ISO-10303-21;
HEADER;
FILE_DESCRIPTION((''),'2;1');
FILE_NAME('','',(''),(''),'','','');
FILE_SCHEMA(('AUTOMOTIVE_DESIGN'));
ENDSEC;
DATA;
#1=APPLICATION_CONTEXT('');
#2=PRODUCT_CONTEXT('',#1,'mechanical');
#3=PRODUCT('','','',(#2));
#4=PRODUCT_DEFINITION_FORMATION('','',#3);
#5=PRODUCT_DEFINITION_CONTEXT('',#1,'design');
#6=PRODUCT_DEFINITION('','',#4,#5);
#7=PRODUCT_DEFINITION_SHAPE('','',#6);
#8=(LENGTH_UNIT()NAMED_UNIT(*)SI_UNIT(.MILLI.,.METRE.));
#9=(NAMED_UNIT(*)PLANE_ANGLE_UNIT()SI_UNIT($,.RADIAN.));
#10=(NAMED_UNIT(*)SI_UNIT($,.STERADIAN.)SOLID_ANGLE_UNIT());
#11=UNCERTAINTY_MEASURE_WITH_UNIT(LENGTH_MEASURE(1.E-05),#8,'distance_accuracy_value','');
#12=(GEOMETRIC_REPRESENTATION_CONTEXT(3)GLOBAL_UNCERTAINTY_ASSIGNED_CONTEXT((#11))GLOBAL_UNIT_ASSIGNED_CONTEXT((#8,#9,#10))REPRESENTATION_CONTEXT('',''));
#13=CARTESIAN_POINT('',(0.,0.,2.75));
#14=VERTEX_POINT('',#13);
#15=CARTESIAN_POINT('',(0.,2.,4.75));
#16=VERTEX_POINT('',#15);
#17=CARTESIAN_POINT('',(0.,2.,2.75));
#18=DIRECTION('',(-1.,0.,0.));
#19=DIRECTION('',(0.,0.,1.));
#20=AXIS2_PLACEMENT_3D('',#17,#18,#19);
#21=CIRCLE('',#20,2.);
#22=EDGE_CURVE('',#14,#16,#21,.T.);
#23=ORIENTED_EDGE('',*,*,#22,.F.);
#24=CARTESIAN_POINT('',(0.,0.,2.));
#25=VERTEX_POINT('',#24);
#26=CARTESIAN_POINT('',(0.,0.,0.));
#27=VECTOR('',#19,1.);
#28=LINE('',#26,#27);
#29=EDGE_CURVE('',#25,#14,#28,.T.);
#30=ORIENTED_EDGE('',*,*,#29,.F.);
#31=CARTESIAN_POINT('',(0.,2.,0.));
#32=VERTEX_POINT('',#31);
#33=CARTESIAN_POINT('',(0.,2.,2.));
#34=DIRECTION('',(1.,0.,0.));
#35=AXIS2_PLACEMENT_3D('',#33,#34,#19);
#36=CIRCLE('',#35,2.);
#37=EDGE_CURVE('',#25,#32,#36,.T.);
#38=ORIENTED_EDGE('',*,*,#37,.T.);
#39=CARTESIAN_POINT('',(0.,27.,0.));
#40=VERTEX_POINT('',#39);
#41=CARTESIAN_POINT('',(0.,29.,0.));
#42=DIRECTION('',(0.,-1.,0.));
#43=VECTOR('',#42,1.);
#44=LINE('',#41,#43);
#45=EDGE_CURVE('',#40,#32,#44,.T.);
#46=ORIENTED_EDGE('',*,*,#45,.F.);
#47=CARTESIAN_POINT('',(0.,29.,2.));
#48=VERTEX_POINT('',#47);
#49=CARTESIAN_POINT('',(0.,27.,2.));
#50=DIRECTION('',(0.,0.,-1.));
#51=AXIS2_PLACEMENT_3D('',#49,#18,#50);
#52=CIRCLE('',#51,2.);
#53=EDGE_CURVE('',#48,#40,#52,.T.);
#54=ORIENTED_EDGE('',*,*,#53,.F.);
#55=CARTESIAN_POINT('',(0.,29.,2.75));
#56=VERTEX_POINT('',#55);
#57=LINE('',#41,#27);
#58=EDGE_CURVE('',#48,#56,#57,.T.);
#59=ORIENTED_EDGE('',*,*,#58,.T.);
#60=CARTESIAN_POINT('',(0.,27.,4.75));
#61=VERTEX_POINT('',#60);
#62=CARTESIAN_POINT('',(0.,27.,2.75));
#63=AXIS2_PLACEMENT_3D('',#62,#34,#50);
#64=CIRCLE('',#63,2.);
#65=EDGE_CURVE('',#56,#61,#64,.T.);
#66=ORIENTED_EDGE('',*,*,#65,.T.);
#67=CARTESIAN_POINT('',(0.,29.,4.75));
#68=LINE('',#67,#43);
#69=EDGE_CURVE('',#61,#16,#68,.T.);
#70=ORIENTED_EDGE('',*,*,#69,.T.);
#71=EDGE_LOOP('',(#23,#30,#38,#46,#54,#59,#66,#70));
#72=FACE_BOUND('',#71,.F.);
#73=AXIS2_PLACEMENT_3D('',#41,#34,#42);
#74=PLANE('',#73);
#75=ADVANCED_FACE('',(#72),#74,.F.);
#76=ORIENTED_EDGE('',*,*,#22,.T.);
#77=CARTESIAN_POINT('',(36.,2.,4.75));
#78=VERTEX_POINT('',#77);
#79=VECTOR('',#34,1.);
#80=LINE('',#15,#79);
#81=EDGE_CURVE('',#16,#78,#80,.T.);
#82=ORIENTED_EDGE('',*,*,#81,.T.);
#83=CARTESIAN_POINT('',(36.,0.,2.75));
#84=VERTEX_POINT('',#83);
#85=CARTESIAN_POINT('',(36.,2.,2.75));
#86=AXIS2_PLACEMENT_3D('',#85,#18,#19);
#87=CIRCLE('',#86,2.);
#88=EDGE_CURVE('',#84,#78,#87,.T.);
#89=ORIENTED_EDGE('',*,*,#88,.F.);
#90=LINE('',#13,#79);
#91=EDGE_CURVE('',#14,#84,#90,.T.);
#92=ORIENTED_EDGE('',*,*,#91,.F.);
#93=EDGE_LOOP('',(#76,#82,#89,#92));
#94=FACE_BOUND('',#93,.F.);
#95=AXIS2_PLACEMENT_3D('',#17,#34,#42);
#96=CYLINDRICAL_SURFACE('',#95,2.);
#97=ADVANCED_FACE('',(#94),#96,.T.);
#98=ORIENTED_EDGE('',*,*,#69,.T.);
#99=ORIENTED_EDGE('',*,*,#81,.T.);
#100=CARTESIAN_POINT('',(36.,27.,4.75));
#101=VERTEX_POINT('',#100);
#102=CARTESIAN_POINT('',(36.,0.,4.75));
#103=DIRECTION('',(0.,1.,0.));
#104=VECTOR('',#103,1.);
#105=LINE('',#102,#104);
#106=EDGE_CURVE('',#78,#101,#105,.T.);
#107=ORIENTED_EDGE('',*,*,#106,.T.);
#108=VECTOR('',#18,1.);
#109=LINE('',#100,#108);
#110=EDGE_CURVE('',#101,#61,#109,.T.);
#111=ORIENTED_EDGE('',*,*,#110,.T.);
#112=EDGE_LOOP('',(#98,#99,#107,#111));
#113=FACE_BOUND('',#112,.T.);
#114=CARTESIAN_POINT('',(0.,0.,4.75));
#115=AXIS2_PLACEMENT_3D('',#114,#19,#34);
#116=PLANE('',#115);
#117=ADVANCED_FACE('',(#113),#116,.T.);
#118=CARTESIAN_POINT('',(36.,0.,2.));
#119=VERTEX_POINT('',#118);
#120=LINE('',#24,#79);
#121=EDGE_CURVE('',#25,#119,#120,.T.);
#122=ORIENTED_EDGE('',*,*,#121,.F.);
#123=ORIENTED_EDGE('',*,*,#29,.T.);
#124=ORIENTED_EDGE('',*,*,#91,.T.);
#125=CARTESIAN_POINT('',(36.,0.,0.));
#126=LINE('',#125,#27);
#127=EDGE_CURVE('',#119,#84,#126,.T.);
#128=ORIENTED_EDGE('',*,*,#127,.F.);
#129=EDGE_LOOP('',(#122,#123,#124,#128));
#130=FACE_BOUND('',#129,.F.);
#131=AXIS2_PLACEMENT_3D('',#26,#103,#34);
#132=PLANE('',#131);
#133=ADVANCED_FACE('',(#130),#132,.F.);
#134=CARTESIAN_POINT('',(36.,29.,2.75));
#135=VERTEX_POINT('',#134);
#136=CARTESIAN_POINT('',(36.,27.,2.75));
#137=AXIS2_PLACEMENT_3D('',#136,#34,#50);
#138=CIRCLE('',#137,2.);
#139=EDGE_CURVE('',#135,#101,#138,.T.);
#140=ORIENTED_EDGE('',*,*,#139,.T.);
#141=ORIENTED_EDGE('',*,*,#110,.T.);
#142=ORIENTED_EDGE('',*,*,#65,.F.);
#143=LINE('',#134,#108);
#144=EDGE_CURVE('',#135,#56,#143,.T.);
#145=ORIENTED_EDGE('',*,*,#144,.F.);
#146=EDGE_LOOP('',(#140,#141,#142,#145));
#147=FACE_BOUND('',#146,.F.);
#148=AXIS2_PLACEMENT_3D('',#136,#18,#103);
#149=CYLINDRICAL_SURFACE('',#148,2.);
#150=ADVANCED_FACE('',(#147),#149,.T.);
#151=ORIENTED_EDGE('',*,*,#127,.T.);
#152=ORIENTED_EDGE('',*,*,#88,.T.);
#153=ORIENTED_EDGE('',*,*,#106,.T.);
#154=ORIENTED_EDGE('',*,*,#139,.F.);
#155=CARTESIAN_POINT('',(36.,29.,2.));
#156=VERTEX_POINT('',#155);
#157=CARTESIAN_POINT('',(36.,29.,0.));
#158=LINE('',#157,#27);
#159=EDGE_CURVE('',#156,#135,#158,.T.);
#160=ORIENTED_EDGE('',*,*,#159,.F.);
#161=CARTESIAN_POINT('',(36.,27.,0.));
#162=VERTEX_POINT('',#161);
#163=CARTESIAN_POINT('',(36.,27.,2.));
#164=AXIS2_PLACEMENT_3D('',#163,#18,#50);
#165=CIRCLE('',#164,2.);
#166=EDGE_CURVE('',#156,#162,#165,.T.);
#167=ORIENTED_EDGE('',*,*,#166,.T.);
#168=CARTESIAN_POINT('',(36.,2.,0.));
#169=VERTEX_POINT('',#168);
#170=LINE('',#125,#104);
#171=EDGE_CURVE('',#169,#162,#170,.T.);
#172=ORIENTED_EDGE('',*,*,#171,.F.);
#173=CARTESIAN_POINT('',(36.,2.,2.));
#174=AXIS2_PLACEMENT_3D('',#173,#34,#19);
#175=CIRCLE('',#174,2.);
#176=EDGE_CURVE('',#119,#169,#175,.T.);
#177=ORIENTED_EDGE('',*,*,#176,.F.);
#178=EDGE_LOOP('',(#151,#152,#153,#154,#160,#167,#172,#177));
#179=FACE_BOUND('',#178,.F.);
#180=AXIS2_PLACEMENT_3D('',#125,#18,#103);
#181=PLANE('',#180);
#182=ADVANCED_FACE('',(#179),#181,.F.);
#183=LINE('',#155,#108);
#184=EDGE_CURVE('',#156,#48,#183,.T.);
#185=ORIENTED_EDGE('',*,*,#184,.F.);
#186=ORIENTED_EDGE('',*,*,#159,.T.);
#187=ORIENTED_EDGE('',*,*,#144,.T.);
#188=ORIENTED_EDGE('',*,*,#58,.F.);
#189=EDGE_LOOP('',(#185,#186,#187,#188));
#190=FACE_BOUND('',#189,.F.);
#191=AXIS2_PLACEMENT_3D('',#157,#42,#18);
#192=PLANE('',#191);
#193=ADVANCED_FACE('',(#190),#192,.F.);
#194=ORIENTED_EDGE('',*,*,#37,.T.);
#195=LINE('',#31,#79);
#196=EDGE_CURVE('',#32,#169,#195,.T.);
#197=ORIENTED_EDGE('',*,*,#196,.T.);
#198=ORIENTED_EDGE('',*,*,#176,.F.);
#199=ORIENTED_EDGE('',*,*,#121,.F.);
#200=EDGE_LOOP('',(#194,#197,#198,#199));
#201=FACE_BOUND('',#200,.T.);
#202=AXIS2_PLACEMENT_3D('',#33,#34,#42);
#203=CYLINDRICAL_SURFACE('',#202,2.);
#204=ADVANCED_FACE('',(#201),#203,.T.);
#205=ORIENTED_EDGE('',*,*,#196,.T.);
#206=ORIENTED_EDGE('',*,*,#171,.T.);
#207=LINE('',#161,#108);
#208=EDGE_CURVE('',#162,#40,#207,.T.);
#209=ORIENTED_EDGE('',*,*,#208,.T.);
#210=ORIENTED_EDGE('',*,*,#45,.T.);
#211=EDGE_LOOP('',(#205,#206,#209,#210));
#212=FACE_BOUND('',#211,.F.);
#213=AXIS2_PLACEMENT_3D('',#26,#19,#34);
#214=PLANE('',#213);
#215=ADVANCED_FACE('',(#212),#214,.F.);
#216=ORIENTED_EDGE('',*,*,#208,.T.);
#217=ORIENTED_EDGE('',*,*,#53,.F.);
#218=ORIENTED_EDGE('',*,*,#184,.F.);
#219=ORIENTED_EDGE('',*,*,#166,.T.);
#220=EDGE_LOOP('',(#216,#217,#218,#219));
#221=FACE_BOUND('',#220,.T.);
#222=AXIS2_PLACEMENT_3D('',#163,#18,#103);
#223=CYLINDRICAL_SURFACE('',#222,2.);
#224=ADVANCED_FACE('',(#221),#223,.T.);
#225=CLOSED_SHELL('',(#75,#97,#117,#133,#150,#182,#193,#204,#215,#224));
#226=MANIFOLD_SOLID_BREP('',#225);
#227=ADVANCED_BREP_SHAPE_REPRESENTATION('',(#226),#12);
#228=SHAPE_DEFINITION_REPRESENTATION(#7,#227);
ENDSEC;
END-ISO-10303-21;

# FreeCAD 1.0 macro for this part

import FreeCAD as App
import Part
import Sketcher

V = App.Vector
Q = App.Units.Quantity


def edges_at(feature, points):
    """Names of the edges that pass closest to the given points."""
    edges = feature.Shape.Edges
    near = lambda p: min(range(len(edges)), key=lambda i: edges[i].distToShape(Part.Vertex(*p))[0])
    return sorted({f"Edge{near(p) + 1}" for p in points})


def add_polygon(sketch, points):
    """Adds a closed chain of lines whose ends are joined by coincident constraints."""
    first, n = sketch.GeometryCount, len(points)
    for a, b in zip(points, points[1:] + points[:1]):
        sketch.addGeometry(Part.LineSegment(App.Vector(*a, 0), App.Vector(*b, 0)), False)
    for i in range(n):
        sketch.addConstraint(Sketcher.Constraint("Coincident", first + i, 2, first + (i + 1) % n, 1))

doc = App.newDocument("Part")
body = doc.addObject("PartDesign::Body", "Body")

# Sketch on XY plane
sketch1 = doc.addObject("Sketcher::SketchObject", "Sketch")
body.addObject(sketch1)
sketch1.AttachmentSupport = (doc.XY_Plane, [""])
sketch1.MapMode = "FlatFace"
add_polygon(sketch1, [(0, 29), (0, 0), (36, 0), (36, 29)])  # lines 0-3
sketch1.addConstraint(Sketcher.Constraint("Vertical", 0))
sketch1.addConstraint(Sketcher.Constraint("Horizontal", 1))
sketch1.addConstraint(Sketcher.Constraint("Vertical", 2))
sketch1.addConstraint(Sketcher.Constraint("Horizontal", 3))
sketch1.addConstraint(Sketcher.Constraint("Coincident", 0, 2, -1, 1))
sketch1.addConstraint(Sketcher.Constraint("DistanceX", 1, 1, 1, 2, Q("36 mm")))
sketch1.addConstraint(Sketcher.Constraint("DistanceY", 0, 2, 0, 1, Q("29 mm")))
pad1 = doc.addObject("PartDesign::Pad", "Pad")
body.addObject(pad1)
pad1.Profile = sketch1
pad1.Length = 4.75
doc.recompute()

fillet = doc.addObject("PartDesign::Fillet", "Fillet")
body.addObject(fillet)
fillet.Base = (pad1, edges_at(pad1, [
    (18, 0, 4.75),
    (18, 0, 0),
    (18, 29, 4.75),
    (18, 29, 0),
]))
fillet.Radius = 2

doc.recompute()
